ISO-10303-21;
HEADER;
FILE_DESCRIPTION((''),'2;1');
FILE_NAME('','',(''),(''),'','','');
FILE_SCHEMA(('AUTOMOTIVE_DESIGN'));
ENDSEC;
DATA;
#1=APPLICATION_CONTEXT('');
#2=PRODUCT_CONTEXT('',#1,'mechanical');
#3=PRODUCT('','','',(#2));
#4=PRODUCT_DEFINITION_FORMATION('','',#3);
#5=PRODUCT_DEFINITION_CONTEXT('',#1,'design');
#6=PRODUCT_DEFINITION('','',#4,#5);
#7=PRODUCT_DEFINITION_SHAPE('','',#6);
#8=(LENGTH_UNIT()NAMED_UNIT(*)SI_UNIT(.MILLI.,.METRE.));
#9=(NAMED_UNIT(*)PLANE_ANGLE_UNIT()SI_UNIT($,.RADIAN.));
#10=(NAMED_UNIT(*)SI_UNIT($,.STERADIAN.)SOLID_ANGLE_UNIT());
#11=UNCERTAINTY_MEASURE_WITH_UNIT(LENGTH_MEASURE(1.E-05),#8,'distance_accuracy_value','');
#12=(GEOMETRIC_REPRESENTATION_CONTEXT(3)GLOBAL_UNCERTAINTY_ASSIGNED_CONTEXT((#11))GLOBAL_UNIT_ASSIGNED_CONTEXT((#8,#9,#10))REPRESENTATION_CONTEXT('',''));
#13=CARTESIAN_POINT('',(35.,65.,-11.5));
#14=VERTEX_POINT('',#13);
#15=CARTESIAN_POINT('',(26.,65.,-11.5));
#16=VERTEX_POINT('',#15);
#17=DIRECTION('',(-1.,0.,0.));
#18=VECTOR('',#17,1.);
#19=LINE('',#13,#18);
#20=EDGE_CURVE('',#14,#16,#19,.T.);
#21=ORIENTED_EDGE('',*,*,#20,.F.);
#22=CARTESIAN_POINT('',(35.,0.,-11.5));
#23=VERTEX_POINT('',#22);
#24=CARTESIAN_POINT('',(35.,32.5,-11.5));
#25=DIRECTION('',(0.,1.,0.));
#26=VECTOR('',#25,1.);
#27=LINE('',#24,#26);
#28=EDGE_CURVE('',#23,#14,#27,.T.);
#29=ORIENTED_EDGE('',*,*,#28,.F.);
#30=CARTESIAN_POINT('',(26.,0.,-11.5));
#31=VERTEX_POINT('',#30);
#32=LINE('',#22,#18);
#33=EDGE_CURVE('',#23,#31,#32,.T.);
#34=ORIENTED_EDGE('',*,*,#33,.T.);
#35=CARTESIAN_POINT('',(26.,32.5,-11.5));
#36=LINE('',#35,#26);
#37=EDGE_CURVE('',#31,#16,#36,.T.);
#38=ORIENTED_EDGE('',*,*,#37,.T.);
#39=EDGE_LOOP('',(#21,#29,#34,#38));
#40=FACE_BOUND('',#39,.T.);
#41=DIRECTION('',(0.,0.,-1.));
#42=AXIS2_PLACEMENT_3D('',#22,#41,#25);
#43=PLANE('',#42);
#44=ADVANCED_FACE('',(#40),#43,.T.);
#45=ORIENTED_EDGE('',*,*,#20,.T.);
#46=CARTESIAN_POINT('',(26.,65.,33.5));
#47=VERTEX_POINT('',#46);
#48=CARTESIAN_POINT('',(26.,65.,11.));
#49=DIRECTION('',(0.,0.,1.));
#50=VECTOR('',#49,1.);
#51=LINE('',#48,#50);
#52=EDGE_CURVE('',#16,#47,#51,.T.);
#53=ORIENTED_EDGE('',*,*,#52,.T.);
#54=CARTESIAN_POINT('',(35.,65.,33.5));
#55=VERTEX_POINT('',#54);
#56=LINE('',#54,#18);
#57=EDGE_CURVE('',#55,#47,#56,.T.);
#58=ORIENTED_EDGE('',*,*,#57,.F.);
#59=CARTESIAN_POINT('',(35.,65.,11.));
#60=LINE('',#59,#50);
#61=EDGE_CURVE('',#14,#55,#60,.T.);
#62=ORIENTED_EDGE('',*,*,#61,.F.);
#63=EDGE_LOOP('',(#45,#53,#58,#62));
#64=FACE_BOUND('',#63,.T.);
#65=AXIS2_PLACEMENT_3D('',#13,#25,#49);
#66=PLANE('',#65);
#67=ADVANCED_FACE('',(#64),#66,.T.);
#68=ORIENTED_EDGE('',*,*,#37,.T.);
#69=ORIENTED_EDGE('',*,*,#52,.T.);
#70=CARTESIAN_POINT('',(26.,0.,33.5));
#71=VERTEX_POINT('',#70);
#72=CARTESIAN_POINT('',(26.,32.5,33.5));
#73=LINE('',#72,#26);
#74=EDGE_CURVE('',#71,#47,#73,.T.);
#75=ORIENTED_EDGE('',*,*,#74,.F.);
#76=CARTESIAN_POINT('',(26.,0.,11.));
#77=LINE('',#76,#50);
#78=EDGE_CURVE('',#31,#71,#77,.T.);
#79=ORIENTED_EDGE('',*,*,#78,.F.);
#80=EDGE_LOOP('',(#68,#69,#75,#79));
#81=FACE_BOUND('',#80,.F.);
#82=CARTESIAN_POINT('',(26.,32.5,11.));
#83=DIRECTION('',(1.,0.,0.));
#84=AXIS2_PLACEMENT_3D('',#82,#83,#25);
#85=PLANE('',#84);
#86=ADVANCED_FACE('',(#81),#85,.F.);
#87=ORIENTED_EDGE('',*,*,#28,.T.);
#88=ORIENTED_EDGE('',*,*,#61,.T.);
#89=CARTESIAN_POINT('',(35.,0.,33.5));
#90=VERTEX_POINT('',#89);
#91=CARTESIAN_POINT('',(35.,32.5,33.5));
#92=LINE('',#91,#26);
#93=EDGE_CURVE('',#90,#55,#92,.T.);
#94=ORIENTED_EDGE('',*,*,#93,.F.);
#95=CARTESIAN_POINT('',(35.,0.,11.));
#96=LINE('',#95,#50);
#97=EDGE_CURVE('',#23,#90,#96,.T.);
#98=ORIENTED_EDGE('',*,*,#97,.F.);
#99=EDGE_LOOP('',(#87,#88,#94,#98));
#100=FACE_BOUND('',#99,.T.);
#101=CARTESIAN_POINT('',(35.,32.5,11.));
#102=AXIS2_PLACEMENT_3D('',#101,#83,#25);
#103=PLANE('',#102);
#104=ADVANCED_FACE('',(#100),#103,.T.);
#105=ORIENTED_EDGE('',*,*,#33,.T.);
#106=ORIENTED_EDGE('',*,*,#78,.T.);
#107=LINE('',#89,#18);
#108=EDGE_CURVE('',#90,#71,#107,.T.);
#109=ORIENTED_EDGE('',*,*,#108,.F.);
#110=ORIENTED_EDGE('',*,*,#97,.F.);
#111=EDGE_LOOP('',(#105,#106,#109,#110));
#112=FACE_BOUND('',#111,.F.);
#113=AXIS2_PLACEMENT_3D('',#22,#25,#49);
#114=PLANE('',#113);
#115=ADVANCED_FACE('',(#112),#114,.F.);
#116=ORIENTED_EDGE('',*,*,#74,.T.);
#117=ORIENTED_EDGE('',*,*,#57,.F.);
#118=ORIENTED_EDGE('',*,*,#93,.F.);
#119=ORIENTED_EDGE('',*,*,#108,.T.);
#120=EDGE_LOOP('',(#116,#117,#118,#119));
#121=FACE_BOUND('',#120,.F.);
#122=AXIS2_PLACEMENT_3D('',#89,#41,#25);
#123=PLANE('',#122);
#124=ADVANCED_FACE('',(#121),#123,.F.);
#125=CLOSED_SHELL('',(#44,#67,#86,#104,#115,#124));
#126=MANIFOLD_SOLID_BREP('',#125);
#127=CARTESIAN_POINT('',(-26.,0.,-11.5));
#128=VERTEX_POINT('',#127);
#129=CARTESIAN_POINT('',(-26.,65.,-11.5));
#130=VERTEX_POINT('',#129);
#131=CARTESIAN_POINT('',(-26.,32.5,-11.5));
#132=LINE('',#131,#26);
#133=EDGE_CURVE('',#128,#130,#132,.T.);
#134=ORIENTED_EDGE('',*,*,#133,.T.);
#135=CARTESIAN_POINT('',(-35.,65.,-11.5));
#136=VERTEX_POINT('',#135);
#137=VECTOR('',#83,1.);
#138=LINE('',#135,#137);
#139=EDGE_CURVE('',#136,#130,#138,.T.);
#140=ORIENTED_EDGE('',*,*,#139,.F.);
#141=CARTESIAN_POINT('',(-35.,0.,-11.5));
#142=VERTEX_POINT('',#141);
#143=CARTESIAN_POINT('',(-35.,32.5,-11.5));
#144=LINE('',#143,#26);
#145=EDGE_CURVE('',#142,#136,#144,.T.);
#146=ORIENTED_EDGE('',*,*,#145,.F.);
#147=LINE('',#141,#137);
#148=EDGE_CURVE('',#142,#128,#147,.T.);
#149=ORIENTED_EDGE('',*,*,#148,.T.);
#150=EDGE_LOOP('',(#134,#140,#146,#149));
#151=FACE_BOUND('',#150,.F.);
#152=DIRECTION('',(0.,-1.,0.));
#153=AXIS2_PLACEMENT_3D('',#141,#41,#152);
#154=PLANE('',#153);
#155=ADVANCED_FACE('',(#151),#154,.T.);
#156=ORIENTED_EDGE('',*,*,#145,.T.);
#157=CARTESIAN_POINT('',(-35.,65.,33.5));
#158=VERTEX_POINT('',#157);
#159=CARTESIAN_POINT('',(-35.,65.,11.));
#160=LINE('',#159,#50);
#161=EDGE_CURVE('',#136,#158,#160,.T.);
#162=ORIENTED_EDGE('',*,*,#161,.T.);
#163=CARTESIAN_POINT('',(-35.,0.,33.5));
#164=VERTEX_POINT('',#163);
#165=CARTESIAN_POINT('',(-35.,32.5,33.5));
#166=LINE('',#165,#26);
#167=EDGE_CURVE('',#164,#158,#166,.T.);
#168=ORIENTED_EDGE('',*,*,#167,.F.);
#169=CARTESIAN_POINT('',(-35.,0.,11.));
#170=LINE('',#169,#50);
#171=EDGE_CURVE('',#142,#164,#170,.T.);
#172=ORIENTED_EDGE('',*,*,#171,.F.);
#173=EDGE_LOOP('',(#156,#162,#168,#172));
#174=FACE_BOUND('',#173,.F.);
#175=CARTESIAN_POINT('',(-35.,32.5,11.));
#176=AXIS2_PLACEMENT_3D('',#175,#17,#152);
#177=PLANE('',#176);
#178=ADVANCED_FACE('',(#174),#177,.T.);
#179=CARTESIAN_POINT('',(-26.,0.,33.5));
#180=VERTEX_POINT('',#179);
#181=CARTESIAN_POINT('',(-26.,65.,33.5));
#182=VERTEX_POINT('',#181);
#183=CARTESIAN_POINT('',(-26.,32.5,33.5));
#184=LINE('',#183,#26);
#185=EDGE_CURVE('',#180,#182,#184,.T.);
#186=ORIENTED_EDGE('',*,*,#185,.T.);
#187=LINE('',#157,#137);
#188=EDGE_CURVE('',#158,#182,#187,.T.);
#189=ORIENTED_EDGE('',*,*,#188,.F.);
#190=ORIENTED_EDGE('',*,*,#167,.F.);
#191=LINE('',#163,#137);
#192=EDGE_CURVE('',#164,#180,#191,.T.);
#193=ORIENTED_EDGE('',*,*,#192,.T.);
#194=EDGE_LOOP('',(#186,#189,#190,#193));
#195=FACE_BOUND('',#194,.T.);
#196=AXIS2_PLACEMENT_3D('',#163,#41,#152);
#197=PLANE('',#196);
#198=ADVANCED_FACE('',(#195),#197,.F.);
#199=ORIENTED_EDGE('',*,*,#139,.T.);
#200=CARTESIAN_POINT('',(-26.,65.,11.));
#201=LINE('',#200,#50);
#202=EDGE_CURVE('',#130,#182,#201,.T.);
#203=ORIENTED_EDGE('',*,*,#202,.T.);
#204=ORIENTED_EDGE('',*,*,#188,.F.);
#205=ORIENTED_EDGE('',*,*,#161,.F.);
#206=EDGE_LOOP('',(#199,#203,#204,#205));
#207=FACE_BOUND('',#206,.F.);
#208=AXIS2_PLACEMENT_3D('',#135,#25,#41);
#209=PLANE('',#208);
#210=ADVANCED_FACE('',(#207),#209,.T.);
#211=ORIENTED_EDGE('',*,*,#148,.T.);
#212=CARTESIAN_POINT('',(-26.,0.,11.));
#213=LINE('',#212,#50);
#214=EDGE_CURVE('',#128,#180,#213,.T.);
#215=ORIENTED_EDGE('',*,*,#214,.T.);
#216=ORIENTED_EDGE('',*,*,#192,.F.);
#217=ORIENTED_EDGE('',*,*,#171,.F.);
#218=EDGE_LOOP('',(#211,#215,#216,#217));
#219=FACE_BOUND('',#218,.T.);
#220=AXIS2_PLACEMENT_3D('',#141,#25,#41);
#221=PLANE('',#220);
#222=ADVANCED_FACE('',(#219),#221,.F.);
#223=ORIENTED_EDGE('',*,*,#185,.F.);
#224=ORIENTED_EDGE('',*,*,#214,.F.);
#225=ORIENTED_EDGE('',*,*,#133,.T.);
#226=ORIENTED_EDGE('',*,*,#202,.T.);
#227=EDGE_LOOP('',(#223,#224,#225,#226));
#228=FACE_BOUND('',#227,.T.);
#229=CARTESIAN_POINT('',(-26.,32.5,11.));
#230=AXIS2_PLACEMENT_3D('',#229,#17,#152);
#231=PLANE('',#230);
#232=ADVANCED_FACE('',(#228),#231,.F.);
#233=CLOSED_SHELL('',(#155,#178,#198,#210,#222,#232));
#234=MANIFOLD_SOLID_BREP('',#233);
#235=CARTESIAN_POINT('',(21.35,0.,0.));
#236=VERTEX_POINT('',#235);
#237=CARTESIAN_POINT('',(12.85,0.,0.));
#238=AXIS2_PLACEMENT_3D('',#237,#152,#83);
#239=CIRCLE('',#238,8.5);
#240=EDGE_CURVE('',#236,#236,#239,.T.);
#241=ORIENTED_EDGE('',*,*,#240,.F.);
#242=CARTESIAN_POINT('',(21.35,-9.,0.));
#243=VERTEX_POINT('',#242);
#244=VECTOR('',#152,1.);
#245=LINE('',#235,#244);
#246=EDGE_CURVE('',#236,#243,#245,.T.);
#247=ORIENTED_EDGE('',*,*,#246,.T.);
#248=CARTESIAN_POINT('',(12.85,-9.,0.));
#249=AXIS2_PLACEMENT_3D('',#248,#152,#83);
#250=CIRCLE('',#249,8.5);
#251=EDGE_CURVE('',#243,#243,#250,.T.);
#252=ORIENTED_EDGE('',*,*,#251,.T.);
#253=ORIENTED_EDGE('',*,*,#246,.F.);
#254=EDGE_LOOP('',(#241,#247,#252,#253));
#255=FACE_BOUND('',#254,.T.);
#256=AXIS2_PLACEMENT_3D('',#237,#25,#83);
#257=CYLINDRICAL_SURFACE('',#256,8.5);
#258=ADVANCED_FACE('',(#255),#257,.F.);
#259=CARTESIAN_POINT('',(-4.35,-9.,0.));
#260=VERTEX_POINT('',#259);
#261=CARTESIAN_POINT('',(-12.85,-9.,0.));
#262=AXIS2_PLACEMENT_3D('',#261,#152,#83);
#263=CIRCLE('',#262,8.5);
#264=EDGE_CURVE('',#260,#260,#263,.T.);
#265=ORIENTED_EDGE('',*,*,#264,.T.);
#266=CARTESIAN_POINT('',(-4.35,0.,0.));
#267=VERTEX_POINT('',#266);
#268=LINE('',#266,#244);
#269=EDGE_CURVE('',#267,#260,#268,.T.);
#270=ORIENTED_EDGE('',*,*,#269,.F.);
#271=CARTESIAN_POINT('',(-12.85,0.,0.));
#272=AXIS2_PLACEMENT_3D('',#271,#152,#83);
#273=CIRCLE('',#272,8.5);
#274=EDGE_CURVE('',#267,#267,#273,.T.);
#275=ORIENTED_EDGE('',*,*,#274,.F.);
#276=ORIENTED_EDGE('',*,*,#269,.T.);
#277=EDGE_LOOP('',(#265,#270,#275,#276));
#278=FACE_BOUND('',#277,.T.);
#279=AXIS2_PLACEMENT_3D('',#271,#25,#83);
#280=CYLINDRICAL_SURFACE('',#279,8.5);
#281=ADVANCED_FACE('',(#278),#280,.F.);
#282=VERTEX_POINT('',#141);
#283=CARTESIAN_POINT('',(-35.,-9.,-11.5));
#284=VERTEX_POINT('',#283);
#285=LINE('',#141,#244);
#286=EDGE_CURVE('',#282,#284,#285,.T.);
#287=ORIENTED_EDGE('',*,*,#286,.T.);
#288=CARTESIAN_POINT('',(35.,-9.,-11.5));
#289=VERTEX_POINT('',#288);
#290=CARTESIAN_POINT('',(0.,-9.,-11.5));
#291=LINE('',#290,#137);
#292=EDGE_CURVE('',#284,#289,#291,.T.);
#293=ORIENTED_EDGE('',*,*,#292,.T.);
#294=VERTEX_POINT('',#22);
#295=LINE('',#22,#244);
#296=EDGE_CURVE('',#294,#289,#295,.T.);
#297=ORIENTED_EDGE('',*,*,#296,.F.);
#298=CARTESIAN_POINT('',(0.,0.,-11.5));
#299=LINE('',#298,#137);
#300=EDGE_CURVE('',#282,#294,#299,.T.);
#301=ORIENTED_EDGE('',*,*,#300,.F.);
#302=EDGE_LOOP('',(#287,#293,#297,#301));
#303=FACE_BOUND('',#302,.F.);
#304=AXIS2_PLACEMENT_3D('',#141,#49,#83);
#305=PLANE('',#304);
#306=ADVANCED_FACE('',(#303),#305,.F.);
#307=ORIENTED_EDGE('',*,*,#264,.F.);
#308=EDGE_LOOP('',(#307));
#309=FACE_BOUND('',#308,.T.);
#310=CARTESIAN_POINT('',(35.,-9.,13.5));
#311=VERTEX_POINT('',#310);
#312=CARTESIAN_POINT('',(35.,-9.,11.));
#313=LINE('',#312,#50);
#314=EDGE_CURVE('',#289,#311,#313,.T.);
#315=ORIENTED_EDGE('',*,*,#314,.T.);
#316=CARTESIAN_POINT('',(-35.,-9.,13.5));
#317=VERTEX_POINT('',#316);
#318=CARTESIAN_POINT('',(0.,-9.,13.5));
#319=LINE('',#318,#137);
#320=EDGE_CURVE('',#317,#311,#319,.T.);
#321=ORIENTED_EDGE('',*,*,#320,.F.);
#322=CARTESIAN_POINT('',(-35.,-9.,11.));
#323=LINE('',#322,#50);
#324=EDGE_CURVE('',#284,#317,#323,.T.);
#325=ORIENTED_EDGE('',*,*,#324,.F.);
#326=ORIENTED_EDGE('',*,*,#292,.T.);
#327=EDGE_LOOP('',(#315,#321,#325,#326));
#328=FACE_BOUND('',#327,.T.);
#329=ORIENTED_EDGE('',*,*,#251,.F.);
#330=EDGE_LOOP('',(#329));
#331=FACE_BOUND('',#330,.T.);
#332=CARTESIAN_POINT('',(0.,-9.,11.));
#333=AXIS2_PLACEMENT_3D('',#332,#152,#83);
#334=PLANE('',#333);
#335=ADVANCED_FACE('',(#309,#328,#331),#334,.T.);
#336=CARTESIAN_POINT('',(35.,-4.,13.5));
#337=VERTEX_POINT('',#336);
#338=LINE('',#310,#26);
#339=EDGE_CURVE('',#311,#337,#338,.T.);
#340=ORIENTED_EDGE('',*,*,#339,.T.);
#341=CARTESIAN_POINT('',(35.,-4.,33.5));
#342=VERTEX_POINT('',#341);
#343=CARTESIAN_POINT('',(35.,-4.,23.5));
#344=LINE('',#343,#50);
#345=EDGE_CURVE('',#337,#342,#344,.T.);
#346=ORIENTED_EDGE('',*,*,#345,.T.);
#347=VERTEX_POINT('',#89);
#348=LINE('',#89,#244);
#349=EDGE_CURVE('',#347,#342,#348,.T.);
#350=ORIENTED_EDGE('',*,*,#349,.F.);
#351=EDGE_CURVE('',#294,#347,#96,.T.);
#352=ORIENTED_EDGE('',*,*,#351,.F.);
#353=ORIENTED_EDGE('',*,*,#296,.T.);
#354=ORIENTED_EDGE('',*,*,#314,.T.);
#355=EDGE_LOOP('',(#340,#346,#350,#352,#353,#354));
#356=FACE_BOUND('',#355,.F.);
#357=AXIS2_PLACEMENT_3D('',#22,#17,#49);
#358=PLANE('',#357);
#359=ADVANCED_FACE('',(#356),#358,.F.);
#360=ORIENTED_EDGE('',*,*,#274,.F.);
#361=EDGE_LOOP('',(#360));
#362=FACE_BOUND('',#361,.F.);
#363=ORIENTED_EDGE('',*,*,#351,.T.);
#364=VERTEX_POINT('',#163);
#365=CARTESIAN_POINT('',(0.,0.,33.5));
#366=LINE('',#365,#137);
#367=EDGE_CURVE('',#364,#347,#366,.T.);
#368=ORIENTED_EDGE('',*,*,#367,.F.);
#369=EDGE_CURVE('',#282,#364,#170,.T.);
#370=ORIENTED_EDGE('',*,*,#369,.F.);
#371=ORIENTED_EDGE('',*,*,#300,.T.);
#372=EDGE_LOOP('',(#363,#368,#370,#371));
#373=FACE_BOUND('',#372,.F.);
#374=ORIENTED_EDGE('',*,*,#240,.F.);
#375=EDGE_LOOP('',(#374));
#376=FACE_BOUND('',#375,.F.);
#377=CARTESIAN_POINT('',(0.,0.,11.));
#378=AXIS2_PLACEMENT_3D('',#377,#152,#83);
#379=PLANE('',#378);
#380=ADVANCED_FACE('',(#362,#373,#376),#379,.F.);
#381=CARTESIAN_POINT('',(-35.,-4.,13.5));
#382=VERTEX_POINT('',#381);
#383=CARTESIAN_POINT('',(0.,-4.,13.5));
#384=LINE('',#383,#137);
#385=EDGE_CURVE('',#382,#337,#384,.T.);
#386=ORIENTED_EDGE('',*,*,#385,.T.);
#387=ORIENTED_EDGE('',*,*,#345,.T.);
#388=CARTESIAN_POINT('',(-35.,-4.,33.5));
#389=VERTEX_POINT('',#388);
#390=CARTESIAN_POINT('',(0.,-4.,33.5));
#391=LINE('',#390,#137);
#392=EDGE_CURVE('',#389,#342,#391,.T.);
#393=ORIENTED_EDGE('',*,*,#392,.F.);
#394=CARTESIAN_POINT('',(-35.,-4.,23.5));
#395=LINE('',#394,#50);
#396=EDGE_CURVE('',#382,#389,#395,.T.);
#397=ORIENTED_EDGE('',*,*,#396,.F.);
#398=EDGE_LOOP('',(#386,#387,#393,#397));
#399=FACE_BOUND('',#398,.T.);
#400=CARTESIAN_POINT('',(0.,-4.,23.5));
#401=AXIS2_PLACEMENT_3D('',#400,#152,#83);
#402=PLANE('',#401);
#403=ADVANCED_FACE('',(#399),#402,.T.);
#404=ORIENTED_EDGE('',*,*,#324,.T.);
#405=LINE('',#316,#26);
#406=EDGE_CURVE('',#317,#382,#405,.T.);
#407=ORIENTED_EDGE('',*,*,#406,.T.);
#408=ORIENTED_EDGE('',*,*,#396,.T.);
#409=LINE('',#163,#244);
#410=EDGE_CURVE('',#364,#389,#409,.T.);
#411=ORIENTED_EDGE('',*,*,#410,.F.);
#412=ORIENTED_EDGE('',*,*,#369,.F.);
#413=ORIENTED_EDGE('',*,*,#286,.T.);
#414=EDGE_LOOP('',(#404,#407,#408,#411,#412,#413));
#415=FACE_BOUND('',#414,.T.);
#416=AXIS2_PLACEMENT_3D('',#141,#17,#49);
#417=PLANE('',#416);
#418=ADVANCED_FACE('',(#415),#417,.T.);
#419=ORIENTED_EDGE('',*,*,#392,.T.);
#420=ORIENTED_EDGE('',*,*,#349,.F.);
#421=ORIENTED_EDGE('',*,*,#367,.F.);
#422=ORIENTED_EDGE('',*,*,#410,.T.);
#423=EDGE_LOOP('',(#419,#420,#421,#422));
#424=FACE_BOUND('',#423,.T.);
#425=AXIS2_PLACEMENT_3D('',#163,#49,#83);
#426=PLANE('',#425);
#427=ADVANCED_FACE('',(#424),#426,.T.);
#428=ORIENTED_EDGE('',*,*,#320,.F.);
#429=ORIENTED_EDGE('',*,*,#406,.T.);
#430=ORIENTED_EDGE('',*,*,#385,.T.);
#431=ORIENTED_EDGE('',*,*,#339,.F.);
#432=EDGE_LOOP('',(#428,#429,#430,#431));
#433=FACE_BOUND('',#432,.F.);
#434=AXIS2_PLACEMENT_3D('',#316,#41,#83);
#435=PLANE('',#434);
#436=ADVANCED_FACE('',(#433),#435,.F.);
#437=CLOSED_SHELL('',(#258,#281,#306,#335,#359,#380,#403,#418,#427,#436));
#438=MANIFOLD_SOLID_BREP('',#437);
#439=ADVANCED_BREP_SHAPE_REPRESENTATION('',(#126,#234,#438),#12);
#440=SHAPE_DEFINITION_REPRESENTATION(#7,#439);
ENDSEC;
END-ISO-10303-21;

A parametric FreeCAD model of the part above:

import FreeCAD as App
import Part
import Sketcher

V = App.Vector
Q = App.Units.Quantity

doc = App.newDocument("Part")
body = doc.addObject("PartDesign::Body", "Body")

# Sketch on XZ plane
sketch1 = doc.addObject("Sketcher::SketchObject", "Sketch")
body.addObject(sketch1)
sketch1.AttachmentSupport = (doc.XZ_Plane, [""])
sketch1.MapMode = "FlatFace"
sketch1.addGeometry([
    Part.LineSegment(V(-35, 34, 0), V(-35, -12, 0)),  # 0
    Part.LineSegment(V(-35, -12, 0), V(35, -12, 0)),  # 1
    Part.LineSegment(V(35, -12, 0), V(35, 34, 0)),  # 2
    Part.LineSegment(V(35, 34, 0), V(-35, 34, 0)),  # 3
    Part.Circle(V(-13, 0, 0), V(0, 0, 1), 8),  # 4
    Part.Circle(V(13, 0, 0), V(0, 0, 1), 8),  # 5
], False)
sketch1.addConstraint([
    Sketcher.Constraint("Coincident", 0, 2, 1, 1),
    Sketcher.Constraint("Coincident", 1, 2, 2, 1),
    Sketcher.Constraint("Coincident", 2, 2, 3, 1),
    Sketcher.Constraint("Coincident", 3, 2, 0, 1),
    Sketcher.Constraint("Vertical", 0),
    Sketcher.Constraint("Horizontal", 1),
    Sketcher.Constraint("Vertical", 2),
    Sketcher.Constraint("Horizontal", 3),
    Sketcher.Constraint("Equal", 4, 5),
    Sketcher.Constraint("Symmetric", 4, 3, 5, 3, -1, 1),
    Sketcher.Constraint("PointOnObject", 4, 3, -1),
    Sketcher.Constraint("Diameter", 4, Q("17 mm")),
    Sketcher.Constraint("DistanceX", 1, 1, 1, 2, Q("70 mm")),
    Sketcher.Constraint("DistanceY", 0, 2, 0, 1, Q("45 mm")),
    Sketcher.Constraint("DistanceX", 0, 2, -1, 1, Q("35 mm")),
    Sketcher.Constraint("DistanceY", 0, 2, -1, 1, Q("11.5 mm")),
    Sketcher.Constraint("DistanceX", 4, 3, 5, 3, Q("25.7 mm")),
])
pad1 = doc.addObject("PartDesign::Pad", "Pad")
body.addObject(pad1)
pad1.Profile = sketch1
pad1.Length = 9

# Sketch on XZ plane
sketch2 = doc.addObject("Sketcher::SketchObject", "Sketch001")
body.addObject(sketch2)
sketch2.AttachmentSupport = (doc.XZ_Plane, [""])
sketch2.MapMode = "FlatFace"
sketch2.AttachmentOffset = App.Placement(V(0, 0, 9), App.Rotation())
sketch2.addGeometry([
    Part.LineSegment(V(-35, 34, 0), V(-35, 14, 0)),
    Part.LineSegment(V(-35, 14, 0), V(35, 14, 0)),
    Part.LineSegment(V(35, 14, 0), V(35, 34, 0)),
    Part.LineSegment(V(35, 34, 0), V(-35, 34, 0)),
], False)
sketch2.addConstraint([
    Sketcher.Constraint("Coincident", 0, 2, 1, 1),
    Sketcher.Constraint("Coincident", 1, 2, 2, 1),
    Sketcher.Constraint("Coincident", 2, 2, 3, 1),
    Sketcher.Constraint("Coincident", 3, 2, 0, 1),
    Sketcher.Constraint("Vertical", 0),
    Sketcher.Constraint("Horizontal", 1),
    Sketcher.Constraint("Vertical", 2),
    Sketcher.Constraint("Horizontal", 3),
    Sketcher.Constraint("DistanceX", 1, 1, 1, 2, Q("70 mm")),
    Sketcher.Constraint("DistanceY", 0, 2, 0, 1, Q("20 mm")),
    Sketcher.Constraint("DistanceX", 0, 2, -1, 1, Q("35 mm")),
    Sketcher.Constraint("DistanceY", -1, 1, 0, 2, Q("13.5 mm")),
])
pocket1 = doc.addObject("PartDesign::Pocket", "Pocket")
body.addObject(pocket1)
pocket1.Profile = sketch2
pocket1.Length = 5
body2 = doc.addObject("PartDesign::Body", "Body001")

# Sketch on YZ plane
sketch3 = doc.addObject("Sketcher::SketchObject", "Sketch002")
body2.addObject(sketch3)
sketch3.AttachmentSupport = (doc.getObject("YZ_Plane001"), [""])
sketch3.MapMode = "FlatFace"
sketch3.AttachmentOffset = App.Placement(V(0, 0, 35), App.Rotation())
sketch3.addGeometry([
    Part.LineSegment(V(0, 34, 0), V(0, -12, 0)),
    Part.LineSegment(V(0, -12, 0), V(65, -12, 0)),
    Part.LineSegment(V(65, -12, 0), V(65, 34, 0)),
    Part.LineSegment(V(65, 34, 0), V(0, 34, 0)),
], False)
sketch3.addConstraint([
    Sketcher.Constraint("Coincident", 0, 2, 1, 1),
    Sketcher.Constraint("Coincident", 1, 2, 2, 1),
    Sketcher.Constraint("Coincident", 2, 2, 3, 1),
    Sketcher.Constraint("Coincident", 3, 2, 0, 1),
    Sketcher.Constraint("Vertical", 0),
    Sketcher.Constraint("Horizontal", 1),
    Sketcher.Constraint("Vertical", 2),
    Sketcher.Constraint("Horizontal", 3),
    Sketcher.Constraint("PointOnObject", 0, 2, -2),
    Sketcher.Constraint("DistanceX", 1, 1, 1, 2, Q("65 mm")),
    Sketcher.Constraint("DistanceY", 0, 2, 0, 1, Q("45 mm")),
    Sketcher.Constraint("DistanceY", 0, 2, -1, 1, Q("11.5 mm")),
])
pad2 = doc.addObject("PartDesign::Pad", "Pad001")
body2.addObject(pad2)
pad2.Profile = sketch3
pad2.Length = 9
pad2.Reversed = True
body3 = doc.addObject("PartDesign::Body", "Body002")
doc.recompute()

mirroring = doc.addObject("Part::Mirroring", "Mirroring")
mirroring.Source = body2
mirroring.Base = V(0, 0, 0)
mirroring.Normal = V(1, 0, 0)
body3.BaseFeature = mirroring
doc.recompute()
mirroring.Visibility = False

doc.recompute()
